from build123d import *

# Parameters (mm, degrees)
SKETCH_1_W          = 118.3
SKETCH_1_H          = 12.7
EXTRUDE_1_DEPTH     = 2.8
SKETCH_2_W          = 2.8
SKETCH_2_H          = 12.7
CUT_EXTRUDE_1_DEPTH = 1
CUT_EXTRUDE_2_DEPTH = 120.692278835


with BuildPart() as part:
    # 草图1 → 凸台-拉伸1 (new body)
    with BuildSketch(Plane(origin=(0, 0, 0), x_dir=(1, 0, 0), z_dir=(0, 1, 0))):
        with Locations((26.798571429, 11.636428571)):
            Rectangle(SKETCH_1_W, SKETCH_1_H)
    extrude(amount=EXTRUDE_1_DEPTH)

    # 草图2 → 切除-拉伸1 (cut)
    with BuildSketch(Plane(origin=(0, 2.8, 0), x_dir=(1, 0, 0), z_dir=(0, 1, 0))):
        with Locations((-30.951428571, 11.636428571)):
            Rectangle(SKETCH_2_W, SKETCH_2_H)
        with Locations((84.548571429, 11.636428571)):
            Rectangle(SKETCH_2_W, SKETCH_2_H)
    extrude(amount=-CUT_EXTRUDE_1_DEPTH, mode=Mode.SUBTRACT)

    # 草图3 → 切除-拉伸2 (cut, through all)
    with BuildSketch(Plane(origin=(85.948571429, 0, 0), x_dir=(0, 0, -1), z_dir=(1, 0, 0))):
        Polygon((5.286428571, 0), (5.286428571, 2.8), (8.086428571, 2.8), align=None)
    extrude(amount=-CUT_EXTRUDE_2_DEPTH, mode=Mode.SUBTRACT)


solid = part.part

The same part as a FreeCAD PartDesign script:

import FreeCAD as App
import Part
import Sketcher

V = App.Vector
Q = App.Units.Quantity


def add_polygon(sketch, points):
    """Adds a closed chain of lines whose ends are joined by coincident constraints."""
    first, n = sketch.GeometryCount, len(points)
    for a, b in zip(points, points[1:] + points[:1]):
        sketch.addGeometry(Part.LineSegment(App.Vector(*a, 0), App.Vector(*b, 0)), False)
    for i in range(n):
        sketch.addConstraint(Sketcher.Constraint("Coincident", first + i, 2, first + (i + 1) % n, 1))

doc = App.newDocument("Part")
body = doc.addObject("PartDesign::Body", "Body")

# Sketch on XZ plane
sketch1 = body.newObject("Sketcher::SketchObject", "Sketch")
sketch1.AttachmentSupport = (doc.getObject("XZ_Plane"), [""])
sketch1.MapMode = "FlatFace"
add_polygon(sketch1, [(-32, -18), (-32, -5), (86, -5), (86, -18)])  # lines 0-3
sketch1.addConstraint(Sketcher.Constraint("Vertical", 0))
sketch1.addConstraint(Sketcher.Constraint("Horizontal", 1))
sketch1.addConstraint(Sketcher.Constraint("Vertical", 2))
sketch1.addConstraint(Sketcher.Constraint("Horizontal", 3))
sketch1.addConstraint(Sketcher.Constraint("DistanceX", 1, 1, 1, 2, Q("118.3 mm")))
sketch1.addConstraint(Sketcher.Constraint("DistanceY", 0, 1, 0, 2, Q("12.7 mm")))
sketch1.addConstraint(Sketcher.Constraint("DistanceX", 0, 2, -1, 1, Q("32.351429 mm")))
sketch1.addConstraint(Sketcher.Constraint("DistanceY", 0, 2, -1, 1, Q("5.286429 mm")))
pad1 = body.newObject("PartDesign::Pad", "Pad")
pad1.Profile = sketch1
pad1.Length = 2.8
pad1.Reversed = True

# Sketch on XZ plane
sketch2 = body.newObject("Sketcher::SketchObject", "Sketch001")
sketch2.AttachmentSupport = (doc.getObject("XZ_Plane"), [""])
sketch2.MapMode = "FlatFace"
sketch2.AttachmentOffset = App.Placement(V(0, 0, -2.8), App.Rotation())
add_polygon(sketch2, [(-32.4, -18), (-32.4, -5.3), (-29.6, -5.3), (-29.6, -18)])  # lines 0-3
add_polygon(sketch2, [(83.1, -18), (83.1, -5.3), (85.9, -5.3), (85.9, -18)])  # lines 4-7
sketch2.addConstraint(Sketcher.Constraint("Vertical", 0))
sketch2.addConstraint(Sketcher.Constraint("Horizontal", 1))
sketch2.addConstraint(Sketcher.Constraint("Vertical", 2))
sketch2.addConstraint(Sketcher.Constraint("Horizontal", 3))
sketch2.addConstraint(Sketcher.Constraint("Vertical", 4))
sketch2.addConstraint(Sketcher.Constraint("Horizontal", 5))
sketch2.addConstraint(Sketcher.Constraint("Vertical", 6))
sketch2.addConstraint(Sketcher.Constraint("Horizontal", 7))
sketch2.addConstraint(Sketcher.Constraint("Horizontal", 1, 2, 4, 2))
sketch2.addConstraint(Sketcher.Constraint("Horizontal", 3, 2, 6, 2))
sketch2.addConstraint(Sketcher.Constraint("Equal", 3, 5))
sketch2.addConstraint(Sketcher.Constraint("DistanceX", 1, 1, 1, 2, Q("2.8 mm")))
sketch2.addConstraint(Sketcher.Constraint("DistanceY", 0, 1, 0, 2, Q("12.7 mm")))
sketch2.addConstraint(Sketcher.Constraint("DistanceX", 1, 2, 4, 2, Q("112.7 mm")))
sketch2.addConstraint(Sketcher.Constraint("DistanceX", 0, 2, -1, 1, Q("32.351429 mm")))
sketch2.addConstraint(Sketcher.Constraint("DistanceY", 0, 2, -1, 1, Q("5.286429 mm")))
pocket1 = body.newObject("PartDesign::Pocket", "Pocket")
pocket1.Profile = sketch2
pocket1.Length = 1
pocket1.Reversed = True

# Sketch on YZ plane
sketch3 = body.newObject("Sketcher::SketchObject", "Sketch002")
sketch3.AttachmentSupport = (doc.getObject("YZ_Plane"), [""])
sketch3.MapMode = "FlatFace"
sketch3.AttachmentOffset = App.Placement(V(0, 0, 85.948571), App.Rotation())
add_polygon(sketch3, [(2.8, -5.3), (0, -5.3), (2.8, -8.1)])  # lines 0-2
sketch3.addConstraint(Sketcher.Constraint("Horizontal", 0))
sketch3.addConstraint(Sketcher.Constraint("Vertical", 2))
sketch3.addConstraint(Sketcher.Constraint("PointOnObject", 0, 2, -2))
sketch3.addConstraint(Sketcher.Constraint("Equal", 0, 2))
sketch3.addConstraint(Sketcher.Constraint("DistanceX", 0, 2, 0, 1, Q("2.8 mm")))
sketch3.addConstraint(Sketcher.Constraint("DistanceY", 0, 2, -1, 1, Q("5.286429 mm")))
pocket2 = body.newObject("PartDesign::Pocket", "Pocket001")
pocket2.Profile = sketch3
pocket2.Type = "ThroughAll"

doc.recompute()
